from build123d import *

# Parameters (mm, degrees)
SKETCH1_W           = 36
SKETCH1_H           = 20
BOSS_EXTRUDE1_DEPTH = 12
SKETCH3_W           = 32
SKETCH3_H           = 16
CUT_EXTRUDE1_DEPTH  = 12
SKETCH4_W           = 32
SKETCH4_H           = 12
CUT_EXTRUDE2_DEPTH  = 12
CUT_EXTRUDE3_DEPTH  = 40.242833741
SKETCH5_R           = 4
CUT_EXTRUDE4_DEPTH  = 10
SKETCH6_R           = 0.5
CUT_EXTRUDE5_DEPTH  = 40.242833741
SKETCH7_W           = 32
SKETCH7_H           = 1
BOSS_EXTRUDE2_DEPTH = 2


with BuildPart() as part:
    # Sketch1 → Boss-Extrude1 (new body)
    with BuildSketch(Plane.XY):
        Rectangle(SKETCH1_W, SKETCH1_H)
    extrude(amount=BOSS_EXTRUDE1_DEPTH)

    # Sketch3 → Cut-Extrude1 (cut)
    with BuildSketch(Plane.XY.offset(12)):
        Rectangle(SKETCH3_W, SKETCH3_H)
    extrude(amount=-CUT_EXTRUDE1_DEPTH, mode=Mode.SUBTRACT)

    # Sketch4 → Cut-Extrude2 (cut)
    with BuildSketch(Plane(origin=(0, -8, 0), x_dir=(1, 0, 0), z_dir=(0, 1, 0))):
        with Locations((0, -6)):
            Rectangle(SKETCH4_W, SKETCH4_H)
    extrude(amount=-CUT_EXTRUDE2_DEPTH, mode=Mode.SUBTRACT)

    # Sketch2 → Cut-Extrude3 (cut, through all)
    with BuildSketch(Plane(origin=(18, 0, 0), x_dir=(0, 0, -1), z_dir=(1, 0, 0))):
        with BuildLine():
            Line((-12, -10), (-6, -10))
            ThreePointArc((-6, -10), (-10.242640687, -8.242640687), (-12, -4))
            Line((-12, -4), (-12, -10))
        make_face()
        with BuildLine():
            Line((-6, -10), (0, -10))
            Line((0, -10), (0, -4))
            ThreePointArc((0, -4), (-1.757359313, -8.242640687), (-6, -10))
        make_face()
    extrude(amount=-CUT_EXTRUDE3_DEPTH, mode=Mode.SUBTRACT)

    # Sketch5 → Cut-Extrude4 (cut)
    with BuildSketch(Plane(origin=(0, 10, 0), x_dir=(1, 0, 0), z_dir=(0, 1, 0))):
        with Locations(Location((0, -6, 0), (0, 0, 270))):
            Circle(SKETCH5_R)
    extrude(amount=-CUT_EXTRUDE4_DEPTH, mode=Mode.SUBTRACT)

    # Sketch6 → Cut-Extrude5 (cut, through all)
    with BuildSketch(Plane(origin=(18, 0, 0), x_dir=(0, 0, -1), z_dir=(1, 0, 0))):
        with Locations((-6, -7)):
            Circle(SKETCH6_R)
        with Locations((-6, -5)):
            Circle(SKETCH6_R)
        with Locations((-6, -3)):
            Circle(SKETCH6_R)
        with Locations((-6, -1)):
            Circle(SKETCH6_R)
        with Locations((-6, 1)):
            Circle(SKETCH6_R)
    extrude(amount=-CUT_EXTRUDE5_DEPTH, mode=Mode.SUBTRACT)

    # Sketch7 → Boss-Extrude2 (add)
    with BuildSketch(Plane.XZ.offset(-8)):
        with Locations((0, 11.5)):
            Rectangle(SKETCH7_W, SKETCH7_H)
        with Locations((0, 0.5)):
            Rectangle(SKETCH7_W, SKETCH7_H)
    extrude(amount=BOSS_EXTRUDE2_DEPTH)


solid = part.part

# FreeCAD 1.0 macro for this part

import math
import FreeCAD as App
import Part
import Sketcher
Q = App.Units.Quantity

doc = App.newDocument("Part")
body = doc.addObject("PartDesign::Body", "Body")

# Sketch on XY plane
sketch1 = body.newObject("Sketcher::SketchObject", "Sketch")
sketch1.AttachmentSupport = (doc.getObject("XY_Plane"), [""])
sketch1.MapMode = "FlatFace"
sketch1.addGeometry([
    Part.LineSegment(App.Vector(-18, 10, 0), App.Vector(-18, -10, 0)),
    Part.LineSegment(App.Vector(-18, -10, 0), App.Vector(18, -10, 0)),
    Part.LineSegment(App.Vector(18, -10, 0), App.Vector(18, 10, 0)),
    Part.LineSegment(App.Vector(18, 10, 0), App.Vector(-18, 10, 0)),
], False)
sketch1.addConstraint([
    Sketcher.Constraint("Coincident", 0, 2, 1, 1),
    Sketcher.Constraint("Coincident", 1, 2, 2, 1),
    Sketcher.Constraint("Coincident", 2, 2, 3, 1),
    Sketcher.Constraint("Coincident", 3, 2, 0, 1),
    Sketcher.Constraint("Vertical", 0),
    Sketcher.Constraint("Horizontal", 1),
    Sketcher.Constraint("Vertical", 2),
    Sketcher.Constraint("Horizontal", 3),
    Sketcher.Constraint("Symmetric", 0, 2, 2, 2, -1, 1),
    Sketcher.Constraint("DistanceX", 1, 1, 1, 2, Q("36 mm")),
    Sketcher.Constraint("DistanceY", 0, 2, 0, 1, Q("20 mm")),
])
pad1 = body.newObject("PartDesign::Pad", "Pad")
pad1.Profile = sketch1
pad1.Length = 12

# Sketch on XY plane
sketch2 = body.newObject("Sketcher::SketchObject", "Sketch001")
sketch2.AttachmentSupport = (doc.getObject("XY_Plane"), [""])
sketch2.MapMode = "FlatFace"
sketch2.AttachmentOffset = App.Placement(App.Vector(0, 0, 12), App.Rotation())
sketch2.addGeometry([
    Part.LineSegment(App.Vector(-16, 8, 0), App.Vector(-16, -8, 0)),
    Part.LineSegment(App.Vector(-16, -8, 0), App.Vector(16, -8, 0)),
    Part.LineSegment(App.Vector(16, -8, 0), App.Vector(16, 8, 0)),
    Part.LineSegment(App.Vector(16, 8, 0), App.Vector(-16, 8, 0)),
], False)
sketch2.addConstraint([
    Sketcher.Constraint("Coincident", 0, 2, 1, 1),
    Sketcher.Constraint("Coincident", 1, 2, 2, 1),
    Sketcher.Constraint("Coincident", 2, 2, 3, 1),
    Sketcher.Constraint("Coincident", 3, 2, 0, 1),
    Sketcher.Constraint("Vertical", 0),
    Sketcher.Constraint("Horizontal", 1),
    Sketcher.Constraint("Vertical", 2),
    Sketcher.Constraint("Horizontal", 3),
    Sketcher.Constraint("Symmetric", 0, 2, 2, 2, -1, 1),
    Sketcher.Constraint("DistanceX", 1, 1, 1, 2, Q("32 mm")),
    Sketcher.Constraint("DistanceY", 0, 2, 0, 1, Q("16 mm")),
])
pocket1 = body.newObject("PartDesign::Pocket", "Pocket")
pocket1.Profile = sketch2
pocket1.Length = 12

# Sketch on XZ plane
sketch3 = body.newObject("Sketcher::SketchObject", "Sketch002")
sketch3.AttachmentSupport = (doc.getObject("XZ_Plane"), [""])
sketch3.MapMode = "FlatFace"
sketch3.AttachmentOffset = App.Placement(App.Vector(0, 0, 8), App.Rotation())
sketch3.addGeometry([
    Part.LineSegment(App.Vector(-16, 0, 0), App.Vector(-16, 12, 0)),
    Part.LineSegment(App.Vector(-16, 12, 0), App.Vector(16, 12, 0)),
    Part.LineSegment(App.Vector(16, 12, 0), App.Vector(16, 0, 0)),
    Part.LineSegment(App.Vector(16, 0, 0), App.Vector(-16, 0, 0)),
], False)
sketch3.addConstraint([
    Sketcher.Constraint("Coincident", 0, 2, 1, 1),
    Sketcher.Constraint("Coincident", 1, 2, 2, 1),
    Sketcher.Constraint("Coincident", 2, 2, 3, 1),
    Sketcher.Constraint("Coincident", 3, 2, 0, 1),
    Sketcher.Constraint("Vertical", 0),
    Sketcher.Constraint("Horizontal", 1),
    Sketcher.Constraint("Vertical", 2),
    Sketcher.Constraint("Horizontal", 3),
    Sketcher.Constraint("Symmetric", 2, 2, 3, 2, -1, 1),
    Sketcher.Constraint("DistanceX", 1, 1, 1, 2, Q("32 mm")),
    Sketcher.Constraint("DistanceY", 0, 1, 0, 2, Q("12 mm")),
])
pocket2 = body.newObject("PartDesign::Pocket", "Pocket001")
pocket2.Profile = sketch3
pocket2.Length = 12
pocket2.Reversed = True

# Sketch on YZ plane
sketch4 = body.newObject("Sketcher::SketchObject", "Sketch003")
sketch4.AttachmentSupport = (doc.getObject("YZ_Plane"), [""])
sketch4.MapMode = "FlatFace"
sketch4.AttachmentOffset = App.Placement(App.Vector(0, 0, 18), App.Rotation())
sketch4.addGeometry([
    Part.LineSegment(App.Vector(-10, 12, 0), App.Vector(-10, 6, 0)),  # 0
    Part.ArcOfCircle(Part.Circle(App.Vector(-4, 6, 0), App.Vector(0, 0, 1), 6), math.radians(90), math.radians(180)),  # 1
    Part.LineSegment(App.Vector(-4, 12, 0), App.Vector(-10, 12, 0)),  # 2
    Part.LineSegment(App.Vector(-10, 6, 0), App.Vector(-10, 0, 0)),  # 3
    Part.LineSegment(App.Vector(-10, 0, 0), App.Vector(-4, 0, 0)),  # 4
    Part.ArcOfCircle(Part.Circle(App.Vector(-4, 6, 0), App.Vector(0, 0, 1), 6), math.radians(180), math.radians(270)),  # 5
], False)
sketch4.addConstraint([
    Sketcher.Constraint("Tangent", 0, 2, 1, 2),
    Sketcher.Constraint("Tangent", 1, 1, 2, 1),
    Sketcher.Constraint("Coincident", 2, 2, 0, 1),
    Sketcher.Constraint("Coincident", 3, 2, 4, 1),
    Sketcher.Constraint("Tangent", 4, 2, 5, 2),
    Sketcher.Constraint("Tangent", 5, 1, 3, 1),
    Sketcher.Constraint("Vertical", 0),
    Sketcher.Constraint("Horizontal", 2),
    Sketcher.Constraint("Vertical", 3),
    Sketcher.Constraint("Horizontal", 4),
    Sketcher.Constraint("Coincident", 5, 3, 1, 3),
    Sketcher.Constraint("Equal", 1, 5),
    Sketcher.Constraint("PointOnObject", 3, 2, -1),
    Sketcher.Constraint("Radius", 1, Q("6 mm")),
    Sketcher.Constraint("DistanceX", 1, 3, -1, 1, Q("4 mm")),
])
pocket3 = body.newObject("PartDesign::Pocket", "Pocket002")
pocket3.Profile = sketch4
pocket3.Type = "ThroughAll"

# Sketch on XZ plane
sketch5 = body.newObject("Sketcher::SketchObject", "Sketch004")
sketch5.AttachmentSupport = (doc.getObject("XZ_Plane"), [""])
sketch5.MapMode = "FlatFace"
sketch5.AttachmentOffset = App.Placement(App.Vector(0, 0, -10), App.Rotation())
sketch5.addGeometry(Part.Circle(App.Vector(0, 6, 0), App.Vector(0, 0, 1), 4), False)
sketch5.addConstraint([
    Sketcher.Constraint("PointOnObject", 0, 3, -2),
    Sketcher.Constraint("Diameter", 0, Q("8 mm")),
    Sketcher.Constraint("DistanceY", -1, 1, 0, 3, Q("6 mm")),
])
pocket4 = body.newObject("PartDesign::Pocket", "Pocket003")
pocket4.Profile = sketch5
pocket4.Length = 10
pocket4.Reversed = True

# Sketch on YZ plane
sketch6 = body.newObject("Sketcher::SketchObject", "Sketch005")
sketch6.AttachmentSupport = (doc.getObject("YZ_Plane"), [""])
sketch6.MapMode = "FlatFace"
sketch6.AttachmentOffset = App.Placement(App.Vector(0, 0, 18), App.Rotation())
sketch6.addGeometry([
    Part.Circle(App.Vector(-7, 6, 0), App.Vector(0, 0, 1), 0.5),  # 0
    Part.Circle(App.Vector(-5, 6, 0), App.Vector(0, 0, 1), 0.5),  # 1
    Part.Circle(App.Vector(-3, 6, 0), App.Vector(0, 0, 1), 0.5),  # 2
    Part.Circle(App.Vector(-1, 6, 0), App.Vector(0, 0, 1), 0.5),  # 3
    Part.Circle(App.Vector(1, 6, 0), App.Vector(0, 0, 1), 0.5),  # 4
], False)
sketch6.addConstraint([
    Sketcher.Constraint("Equal", 0, 1),
    Sketcher.Constraint("Equal", 1, 2),
    Sketcher.Constraint("Equal", 2, 3),
    Sketcher.Constraint("Equal", 3, 4),
    Sketcher.Constraint("Symmetric", 3, 3, 4, 3, -2),
    Sketcher.Constraint("Horizontal", 0, 3, 1, 3),
    Sketcher.Constraint("Horizontal", 1, 3, 2, 3),
    Sketcher.Constraint("Horizontal", 2, 3, 3, 3),
    Sketcher.Constraint("Diameter", 0, Q("1 mm")),
    Sketcher.Constraint("DistanceX", 0, 3, -1, 1, Q("7 mm")),
    Sketcher.Constraint("DistanceY", -1, 1, 0, 3, Q("6 mm")),
    Sketcher.Constraint("DistanceX", 1, 3, -1, 1, Q("5 mm")),
    Sketcher.Constraint("DistanceX", 2, 3, -1, 1, Q("3 mm")),
    Sketcher.Constraint("DistanceX", 3, 3, -1, 1, Q("1 mm")),
])
pocket5 = body.newObject("PartDesign::Pocket", "Pocket004")
pocket5.Profile = sketch6
pocket5.Type = "ThroughAll"

# Sketch on XZ plane
sketch7 = body.newObject("Sketcher::SketchObject", "Sketch006")
sketch7.AttachmentSupport = (doc.getObject("XZ_Plane"), [""])
sketch7.MapMode = "FlatFace"
sketch7.AttachmentOffset = App.Placement(App.Vector(0, 0, -8), App.Rotation())
sketch7.addGeometry([
    Part.LineSegment(App.Vector(-16, 12, 0), App.Vector(-16, 11, 0)),  # 0
    Part.LineSegment(App.Vector(-16, 11, 0), App.Vector(16, 11, 0)),  # 1
    Part.LineSegment(App.Vector(16, 11, 0), App.Vector(16, 12, 0)),  # 2
    Part.LineSegment(App.Vector(16, 12, 0), App.Vector(-16, 12, 0)),  # 3
    Part.LineSegment(App.Vector(-16, 1, 0), App.Vector(-16, 0, 0)),  # 4
    Part.LineSegment(App.Vector(-16, 0, 0), App.Vector(16, 0, 0)),  # 5
    Part.LineSegment(App.Vector(16, 0, 0), App.Vector(16, 1, 0)),  # 6
    Part.LineSegment(App.Vector(16, 1, 0), App.Vector(-16, 1, 0)),  # 7
], False)
sketch7.addConstraint([
    Sketcher.Constraint("Coincident", 0, 2, 1, 1),
    Sketcher.Constraint("Coincident", 1, 2, 2, 1),
    Sketcher.Constraint("Coincident", 2, 2, 3, 1),
    Sketcher.Constraint("Coincident", 3, 2, 0, 1),
    Sketcher.Constraint("Coincident", 4, 2, 5, 1),
    Sketcher.Constraint("Coincident", 5, 2, 6, 1),
    Sketcher.Constraint("Coincident", 6, 2, 7, 1),
    Sketcher.Constraint("Coincident", 7, 2, 4, 1),
    Sketcher.Constraint("Vertical", 0),
    Sketcher.Constraint("Horizontal", 1),
    Sketcher.Constraint("Vertical", 2),
    Sketcher.Constraint("Horizontal", 3),
    Sketcher.Constraint("Vertical", 4),
    Sketcher.Constraint("Horizontal", 5),
    Sketcher.Constraint("Vertical", 6),
    Sketcher.Constraint("Horizontal", 7),
    Sketcher.Constraint("Symmetric", 4, 2, 5, 2, -1, 1),
    Sketcher.Constraint("Vertical", 3, 2, 4, 2),
    Sketcher.Constraint("Vertical", 2, 2, 5, 2),
    Sketcher.Constraint("Equal", 2, 4),
    Sketcher.Constraint("DistanceX", 1, 1, 1, 2, Q("32 mm")),
    Sketcher.Constraint("DistanceY", 0, 2, 0, 1, Q("1 mm")),
    Sketcher.Constraint("DistanceY", -1, 1, 0, 2, Q("11 mm")),
])
pad2 = body.newObject("PartDesign::Pad", "Pad001")
pad2.Profile = sketch7
pad2.Length = 2

doc.recompute()
